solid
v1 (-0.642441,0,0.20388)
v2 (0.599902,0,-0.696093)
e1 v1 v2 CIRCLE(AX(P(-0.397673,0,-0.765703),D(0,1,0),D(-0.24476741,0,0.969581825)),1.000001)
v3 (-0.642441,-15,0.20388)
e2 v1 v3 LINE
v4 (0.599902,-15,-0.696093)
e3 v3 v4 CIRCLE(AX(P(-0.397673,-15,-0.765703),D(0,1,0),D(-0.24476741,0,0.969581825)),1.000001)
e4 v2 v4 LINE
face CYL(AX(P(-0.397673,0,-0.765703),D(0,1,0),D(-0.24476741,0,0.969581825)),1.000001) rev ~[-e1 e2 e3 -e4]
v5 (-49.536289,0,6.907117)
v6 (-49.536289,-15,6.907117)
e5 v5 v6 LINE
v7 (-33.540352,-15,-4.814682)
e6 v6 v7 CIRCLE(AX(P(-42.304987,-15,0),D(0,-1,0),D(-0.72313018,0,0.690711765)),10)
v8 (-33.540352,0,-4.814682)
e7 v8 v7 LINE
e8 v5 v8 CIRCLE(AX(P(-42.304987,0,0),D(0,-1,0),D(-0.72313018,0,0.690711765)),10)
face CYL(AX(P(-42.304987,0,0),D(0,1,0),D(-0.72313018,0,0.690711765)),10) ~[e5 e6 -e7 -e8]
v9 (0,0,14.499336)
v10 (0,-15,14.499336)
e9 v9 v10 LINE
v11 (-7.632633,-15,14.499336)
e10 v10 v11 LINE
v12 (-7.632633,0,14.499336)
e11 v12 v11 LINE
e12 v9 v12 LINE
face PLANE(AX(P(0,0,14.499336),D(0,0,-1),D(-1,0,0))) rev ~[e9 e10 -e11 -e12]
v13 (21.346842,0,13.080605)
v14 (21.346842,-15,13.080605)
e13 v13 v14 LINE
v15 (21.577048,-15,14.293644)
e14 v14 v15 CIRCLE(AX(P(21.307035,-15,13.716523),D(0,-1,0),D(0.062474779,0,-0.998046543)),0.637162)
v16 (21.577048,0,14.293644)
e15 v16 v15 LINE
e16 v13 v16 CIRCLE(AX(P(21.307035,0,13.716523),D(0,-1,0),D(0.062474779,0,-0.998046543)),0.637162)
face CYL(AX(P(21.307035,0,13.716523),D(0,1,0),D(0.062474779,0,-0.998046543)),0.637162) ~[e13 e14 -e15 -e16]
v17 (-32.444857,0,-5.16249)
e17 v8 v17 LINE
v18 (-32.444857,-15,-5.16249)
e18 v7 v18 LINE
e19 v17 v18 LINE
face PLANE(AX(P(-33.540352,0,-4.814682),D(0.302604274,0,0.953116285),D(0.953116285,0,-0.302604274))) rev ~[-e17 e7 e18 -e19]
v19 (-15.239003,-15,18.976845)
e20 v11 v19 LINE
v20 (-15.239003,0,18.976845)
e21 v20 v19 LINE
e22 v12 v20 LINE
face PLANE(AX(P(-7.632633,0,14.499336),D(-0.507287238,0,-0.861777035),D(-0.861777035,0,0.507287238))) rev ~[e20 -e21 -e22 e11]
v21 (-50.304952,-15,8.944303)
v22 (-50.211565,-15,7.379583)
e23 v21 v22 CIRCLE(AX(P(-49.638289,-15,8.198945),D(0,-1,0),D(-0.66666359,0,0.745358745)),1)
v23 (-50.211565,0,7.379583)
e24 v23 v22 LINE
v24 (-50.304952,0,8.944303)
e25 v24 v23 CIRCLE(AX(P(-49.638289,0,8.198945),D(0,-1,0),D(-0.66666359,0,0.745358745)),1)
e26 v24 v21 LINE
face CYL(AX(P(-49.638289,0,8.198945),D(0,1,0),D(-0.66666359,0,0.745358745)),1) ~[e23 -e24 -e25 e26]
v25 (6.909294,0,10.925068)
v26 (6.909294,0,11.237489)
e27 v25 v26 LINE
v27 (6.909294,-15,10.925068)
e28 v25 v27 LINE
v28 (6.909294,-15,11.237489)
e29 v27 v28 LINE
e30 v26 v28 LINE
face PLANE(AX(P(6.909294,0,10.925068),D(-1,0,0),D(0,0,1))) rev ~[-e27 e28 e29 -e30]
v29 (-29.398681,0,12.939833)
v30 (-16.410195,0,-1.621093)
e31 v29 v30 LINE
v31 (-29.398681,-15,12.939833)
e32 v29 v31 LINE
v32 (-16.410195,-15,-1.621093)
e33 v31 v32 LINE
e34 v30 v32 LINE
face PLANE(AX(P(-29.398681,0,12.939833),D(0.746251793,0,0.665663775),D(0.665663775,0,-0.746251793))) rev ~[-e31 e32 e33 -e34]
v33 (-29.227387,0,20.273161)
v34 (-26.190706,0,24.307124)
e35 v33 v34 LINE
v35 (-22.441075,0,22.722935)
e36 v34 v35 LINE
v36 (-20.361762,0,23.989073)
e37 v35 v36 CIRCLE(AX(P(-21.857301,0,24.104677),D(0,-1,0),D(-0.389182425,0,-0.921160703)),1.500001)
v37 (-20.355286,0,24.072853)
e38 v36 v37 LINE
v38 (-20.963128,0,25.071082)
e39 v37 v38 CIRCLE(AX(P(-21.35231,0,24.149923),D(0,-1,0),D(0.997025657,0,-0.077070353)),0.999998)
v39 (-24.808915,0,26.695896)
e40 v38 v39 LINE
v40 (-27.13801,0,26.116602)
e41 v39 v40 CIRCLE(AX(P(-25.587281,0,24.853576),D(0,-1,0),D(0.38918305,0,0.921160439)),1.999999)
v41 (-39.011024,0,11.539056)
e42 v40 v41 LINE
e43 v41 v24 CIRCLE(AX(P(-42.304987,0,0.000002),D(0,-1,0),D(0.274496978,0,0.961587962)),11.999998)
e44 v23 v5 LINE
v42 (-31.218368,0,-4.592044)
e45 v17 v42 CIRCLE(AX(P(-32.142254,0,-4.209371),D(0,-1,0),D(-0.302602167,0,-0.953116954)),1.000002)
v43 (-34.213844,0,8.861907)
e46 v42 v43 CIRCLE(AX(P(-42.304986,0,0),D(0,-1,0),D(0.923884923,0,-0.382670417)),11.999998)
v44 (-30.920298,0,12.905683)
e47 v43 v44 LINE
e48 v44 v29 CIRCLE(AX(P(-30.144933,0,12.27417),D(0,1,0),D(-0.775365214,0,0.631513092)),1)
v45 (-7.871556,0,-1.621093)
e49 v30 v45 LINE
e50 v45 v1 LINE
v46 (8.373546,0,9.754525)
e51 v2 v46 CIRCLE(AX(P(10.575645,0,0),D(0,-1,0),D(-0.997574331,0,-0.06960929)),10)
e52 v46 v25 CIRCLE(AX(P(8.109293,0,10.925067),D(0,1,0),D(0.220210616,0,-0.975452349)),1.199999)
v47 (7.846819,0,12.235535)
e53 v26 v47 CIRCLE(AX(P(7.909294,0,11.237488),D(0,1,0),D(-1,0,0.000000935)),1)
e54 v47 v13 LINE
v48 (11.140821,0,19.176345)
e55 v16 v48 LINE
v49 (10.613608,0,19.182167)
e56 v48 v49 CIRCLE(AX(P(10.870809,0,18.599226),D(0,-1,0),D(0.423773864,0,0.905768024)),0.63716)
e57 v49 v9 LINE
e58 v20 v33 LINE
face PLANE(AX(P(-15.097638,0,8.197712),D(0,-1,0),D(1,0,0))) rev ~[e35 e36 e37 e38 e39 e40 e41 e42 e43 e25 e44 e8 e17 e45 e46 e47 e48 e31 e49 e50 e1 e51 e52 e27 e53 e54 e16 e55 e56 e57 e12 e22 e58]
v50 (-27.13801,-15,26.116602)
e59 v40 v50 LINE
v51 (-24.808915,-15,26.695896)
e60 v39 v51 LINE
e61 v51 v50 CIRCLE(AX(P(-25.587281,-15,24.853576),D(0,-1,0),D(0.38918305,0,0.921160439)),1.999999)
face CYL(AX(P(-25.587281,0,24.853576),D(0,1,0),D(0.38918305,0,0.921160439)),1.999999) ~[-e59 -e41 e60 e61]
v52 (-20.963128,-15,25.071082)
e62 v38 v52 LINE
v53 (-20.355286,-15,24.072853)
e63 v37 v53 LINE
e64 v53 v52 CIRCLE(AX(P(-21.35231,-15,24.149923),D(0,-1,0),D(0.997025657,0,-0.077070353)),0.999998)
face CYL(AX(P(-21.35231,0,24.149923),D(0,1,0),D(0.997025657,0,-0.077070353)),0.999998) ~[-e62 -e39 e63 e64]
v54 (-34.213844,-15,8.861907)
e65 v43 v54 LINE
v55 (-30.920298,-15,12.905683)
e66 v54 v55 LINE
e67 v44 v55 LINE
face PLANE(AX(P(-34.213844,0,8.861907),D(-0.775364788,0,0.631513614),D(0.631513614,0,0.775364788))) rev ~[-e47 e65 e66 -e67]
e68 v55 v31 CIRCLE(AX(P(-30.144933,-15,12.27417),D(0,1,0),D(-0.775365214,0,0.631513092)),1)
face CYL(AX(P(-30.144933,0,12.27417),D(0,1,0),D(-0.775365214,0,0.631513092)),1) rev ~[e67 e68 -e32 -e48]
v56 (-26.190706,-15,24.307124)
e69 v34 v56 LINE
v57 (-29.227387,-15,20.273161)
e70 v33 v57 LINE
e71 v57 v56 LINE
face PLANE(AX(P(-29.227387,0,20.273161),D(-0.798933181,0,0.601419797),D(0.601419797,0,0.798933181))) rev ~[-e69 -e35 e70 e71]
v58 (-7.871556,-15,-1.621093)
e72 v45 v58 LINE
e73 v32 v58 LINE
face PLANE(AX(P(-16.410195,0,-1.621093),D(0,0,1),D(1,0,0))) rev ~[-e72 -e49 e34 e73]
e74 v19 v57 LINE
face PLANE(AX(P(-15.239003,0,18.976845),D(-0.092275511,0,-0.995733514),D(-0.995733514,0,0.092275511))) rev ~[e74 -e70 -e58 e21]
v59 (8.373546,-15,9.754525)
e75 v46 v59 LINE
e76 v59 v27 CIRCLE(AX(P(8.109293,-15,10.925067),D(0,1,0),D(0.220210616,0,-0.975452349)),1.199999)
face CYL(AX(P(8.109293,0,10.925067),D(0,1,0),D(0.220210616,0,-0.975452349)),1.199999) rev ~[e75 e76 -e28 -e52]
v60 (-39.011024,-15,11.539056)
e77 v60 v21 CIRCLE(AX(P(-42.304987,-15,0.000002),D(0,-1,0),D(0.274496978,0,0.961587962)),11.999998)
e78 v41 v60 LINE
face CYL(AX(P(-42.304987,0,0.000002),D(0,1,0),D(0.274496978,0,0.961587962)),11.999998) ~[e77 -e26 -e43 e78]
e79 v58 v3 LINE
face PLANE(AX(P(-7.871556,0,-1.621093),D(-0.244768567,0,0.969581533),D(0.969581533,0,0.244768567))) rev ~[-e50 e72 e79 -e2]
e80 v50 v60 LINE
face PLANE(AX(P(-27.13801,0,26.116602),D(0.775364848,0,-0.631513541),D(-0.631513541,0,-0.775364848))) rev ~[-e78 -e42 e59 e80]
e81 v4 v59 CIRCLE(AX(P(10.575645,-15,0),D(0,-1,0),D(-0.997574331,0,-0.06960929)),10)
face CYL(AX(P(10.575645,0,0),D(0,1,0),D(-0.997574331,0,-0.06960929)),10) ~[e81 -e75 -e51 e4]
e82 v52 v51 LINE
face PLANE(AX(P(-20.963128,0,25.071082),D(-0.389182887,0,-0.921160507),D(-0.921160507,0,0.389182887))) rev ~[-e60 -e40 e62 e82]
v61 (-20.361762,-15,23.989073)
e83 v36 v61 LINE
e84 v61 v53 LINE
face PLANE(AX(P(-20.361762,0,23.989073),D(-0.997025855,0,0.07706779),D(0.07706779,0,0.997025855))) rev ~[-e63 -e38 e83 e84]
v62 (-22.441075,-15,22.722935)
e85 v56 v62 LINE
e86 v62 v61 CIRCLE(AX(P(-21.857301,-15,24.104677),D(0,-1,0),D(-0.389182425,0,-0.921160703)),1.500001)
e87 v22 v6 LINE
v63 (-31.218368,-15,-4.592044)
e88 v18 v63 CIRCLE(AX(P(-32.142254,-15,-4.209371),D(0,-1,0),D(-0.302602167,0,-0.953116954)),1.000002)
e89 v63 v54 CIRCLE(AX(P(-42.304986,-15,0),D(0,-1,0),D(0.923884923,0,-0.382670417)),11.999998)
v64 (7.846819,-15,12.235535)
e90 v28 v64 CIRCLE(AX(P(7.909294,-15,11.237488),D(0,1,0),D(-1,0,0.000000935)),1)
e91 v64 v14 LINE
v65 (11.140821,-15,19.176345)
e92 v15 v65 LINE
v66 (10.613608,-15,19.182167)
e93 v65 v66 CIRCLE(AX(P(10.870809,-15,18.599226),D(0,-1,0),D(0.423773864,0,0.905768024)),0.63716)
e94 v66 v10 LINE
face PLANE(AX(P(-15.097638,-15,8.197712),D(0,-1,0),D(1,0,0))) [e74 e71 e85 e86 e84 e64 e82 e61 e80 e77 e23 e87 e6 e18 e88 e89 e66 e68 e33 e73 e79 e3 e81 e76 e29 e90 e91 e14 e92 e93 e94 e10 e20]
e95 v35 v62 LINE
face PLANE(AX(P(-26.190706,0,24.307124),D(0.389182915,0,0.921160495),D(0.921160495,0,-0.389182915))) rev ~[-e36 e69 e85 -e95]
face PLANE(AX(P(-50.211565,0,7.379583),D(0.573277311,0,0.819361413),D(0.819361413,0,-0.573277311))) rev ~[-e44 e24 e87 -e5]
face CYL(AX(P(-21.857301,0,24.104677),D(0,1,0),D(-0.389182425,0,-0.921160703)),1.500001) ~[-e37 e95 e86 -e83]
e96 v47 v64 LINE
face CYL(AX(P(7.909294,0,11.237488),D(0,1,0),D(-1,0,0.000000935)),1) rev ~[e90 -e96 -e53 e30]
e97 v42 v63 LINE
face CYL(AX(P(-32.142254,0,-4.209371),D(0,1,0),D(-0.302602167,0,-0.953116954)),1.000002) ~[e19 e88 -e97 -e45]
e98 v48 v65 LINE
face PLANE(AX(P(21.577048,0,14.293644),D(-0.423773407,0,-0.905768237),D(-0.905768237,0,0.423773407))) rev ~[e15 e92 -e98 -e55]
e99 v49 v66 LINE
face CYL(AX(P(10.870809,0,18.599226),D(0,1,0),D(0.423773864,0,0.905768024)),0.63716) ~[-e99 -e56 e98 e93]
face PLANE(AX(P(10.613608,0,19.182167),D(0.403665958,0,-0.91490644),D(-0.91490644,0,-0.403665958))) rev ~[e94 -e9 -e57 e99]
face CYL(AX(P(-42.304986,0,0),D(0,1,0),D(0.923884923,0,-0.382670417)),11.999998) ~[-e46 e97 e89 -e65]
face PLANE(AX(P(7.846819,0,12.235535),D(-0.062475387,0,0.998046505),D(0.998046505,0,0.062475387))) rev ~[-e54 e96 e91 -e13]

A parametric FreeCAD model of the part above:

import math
import FreeCAD as App
import Part
import Sketcher
Q = App.Units.Quantity

doc = App.newDocument("Part")
body = doc.addObject("PartDesign::Body", "Body")

sketch1 = body.newObject("Sketcher::SketchObject", "Sketch")
sketch1.AttachmentSupport = (doc.getObject("XZ_Plane"), [""])
sketch1.MapMode = "FlatFace"
sketch1.addGeometry([
    Part.LineSegment(App.Vector(-50.211565, 7.379583, 0), App.Vector(-49.536289, 6.907117, 0)),
    Part.ArcOfCircle(Part.Circle(App.Vector(-42.304987, 0, 0), App.Vector(0, 0, 1), 10), math.radians(136.313522), math.radians(331.218665)),
    Part.LineSegment(App.Vector(-33.540352, -4.814682, 0), App.Vector(-32.444857, -5.16249, 0)),
    Part.ArcOfCircle(Part.Circle(App.Vector(-32.142254, -4.209371, 0), App.Vector(0, 0, 1), 1.000002), math.radians(-107.613963), math.radians(-22.499302)),
    Part.ArcOfCircle(Part.Circle(App.Vector(-42.304986, 0, 0), App.Vector(0, 0, 1), 11.999998), math.radians(-22.499193), math.radians(47.603142)),
    Part.LineSegment(App.Vector(-34.213844, 8.861907, 0), App.Vector(-30.920298, 12.905683, 0)),
    Part.ArcOfCircle(Part.Circle(App.Vector(-30.144933, 12.27417, 0), App.Vector(0, 0, 1), 1), math.radians(41.733217), math.radians(140.838156)),
    Part.LineSegment(App.Vector(-29.398681, 12.939833, 0), App.Vector(-16.410195, -1.621093, 0)),
    Part.LineSegment(App.Vector(-16.410195, -1.621093, 0), App.Vector(-7.871556, -1.621093, 0)),
    Part.LineSegment(App.Vector(-7.871556, -1.621093, 0), App.Vector(-0.642441, 0.20388, 0)),
    Part.ArcOfCircle(Part.Circle(App.Vector(-0.397673, -0.765703, 0), App.Vector(0, 0, 1), 1.000001), math.radians(3.991573), math.radians(104.168089)),
    Part.ArcOfCircle(Part.Circle(App.Vector(10.575645, 0, 0), App.Vector(0, 0, 1), 10), math.radians(-176.008454), math.radians(102.721364)),
    Part.ArcOfCircle(Part.Circle(App.Vector(8.109293, 10.925067, 0), App.Vector(0, 0, 1), 1.199999), math.radians(179.999963), math.radians(282.721404)),
    Part.LineSegment(App.Vector(6.909294, 10.925068, 0), App.Vector(6.909294, 11.237489, 0)),
    Part.ArcOfCircle(Part.Circle(App.Vector(7.909294, 11.237488, 0), App.Vector(0, 0, 1), 1), math.radians(93.58191), math.radians(179.999946)),
    Part.LineSegment(App.Vector(7.846819, 12.235535, 0), App.Vector(21.346842, 13.080605, 0)),
    Part.ArcOfCircle(Part.Circle(App.Vector(21.307035, 13.716523, 0), App.Vector(0, 0, 1), 0.637162), math.radians(-86.418126), math.radians(64.926939)),
    Part.LineSegment(App.Vector(21.577048, 14.293644, 0), App.Vector(11.140821, 19.176345, 0)),
    Part.ArcOfCircle(Part.Circle(App.Vector(10.870809, 18.599226, 0), App.Vector(0, 0, 1), 0.63716), math.radians(64.926922), math.radians(113.807697)),
    Part.LineSegment(App.Vector(10.613608, 19.182167, 0), App.Vector(0, 14.499336, 0)),
    Part.LineSegment(App.Vector(0, 14.499336, 0), App.Vector(-7.632633, 14.499336, 0)),
    Part.LineSegment(App.Vector(-7.632633, 14.499336, 0), App.Vector(-15.239003, 18.976845, 0)),
    Part.LineSegment(App.Vector(-15.239003, 18.976845, 0), App.Vector(-29.227387, 20.273161, 0)),
    Part.LineSegment(App.Vector(-29.227387, 20.273161, 0), App.Vector(-26.190706, 24.307124, 0)),
    Part.LineSegment(App.Vector(-26.190706, 24.307124, 0), App.Vector(-22.441075, 22.722935, 0)),
    Part.ArcOfCircle(Part.Circle(App.Vector(-21.857301, 24.104677, 0), App.Vector(0, 0, 1), 1.500001), math.radians(-112.903637), math.radians(-4.420111)),
    Part.LineSegment(App.Vector(-20.361762, 23.989073, 0), App.Vector(-20.355286, 24.072853, 0)),
    Part.ArcOfCircle(Part.Circle(App.Vector(-21.35231, 24.149923, 0), App.Vector(0, 0, 1), 0.999998), math.radians(-4.420189), math.radians(67.096365)),
    Part.LineSegment(App.Vector(-20.963128, 25.071082, 0), App.Vector(-24.808915, 26.695896, 0)),
    Part.ArcOfCircle(Part.Circle(App.Vector(-25.587281, 24.853576, 0), App.Vector(0, 0, 1), 1.999999), math.radians(67.096324), math.radians(140.838141)),
    Part.LineSegment(App.Vector(-27.13801, 26.116602, 0), App.Vector(-39.011024, 11.539056, 0)),
    Part.ArcOfCircle(Part.Circle(App.Vector(-42.304987, 0.000002, 0), App.Vector(0, 0, 1), 11.999998), math.radians(74.06796), math.radians(131.810099)),
    Part.ArcOfCircle(Part.Circle(App.Vector(-49.638289, 8.198945, 0), App.Vector(0, 0, 1), 1), math.radians(131.810078), math.radians(235.020973)),
], False)
sketch1.addConstraint([
    Sketcher.Constraint("Coincident", 0, 2, 1, 1),
    Sketcher.Constraint("Coincident", 1, 2, 2, 1),
    Sketcher.Constraint("Coincident", 2, 2, 3, 1),
    Sketcher.Constraint("Coincident", 3, 2, 4, 1),
    Sketcher.Constraint("Coincident", 4, 2, 5, 1),
    Sketcher.Constraint("Coincident", 5, 2, 6, 2),
    Sketcher.Constraint("Coincident", 6, 1, 7, 1),
    Sketcher.Constraint("Coincident", 7, 2, 8, 1),
    Sketcher.Constraint("Coincident", 8, 2, 9, 1),
    Sketcher.Constraint("Coincident", 9, 2, 10, 2),
    Sketcher.Constraint("Coincident", 10, 1, 11, 1),
    Sketcher.Constraint("Coincident", 11, 2, 12, 2),
    Sketcher.Constraint("Coincident", 12, 1, 13, 1),
    Sketcher.Constraint("Coincident", 13, 2, 14, 2),
    Sketcher.Constraint("Coincident", 14, 1, 15, 1),
    Sketcher.Constraint("Coincident", 15, 2, 16, 1),
    Sketcher.Constraint("Coincident", 16, 2, 17, 1),
    Sketcher.Constraint("Coincident", 17, 2, 18, 1),
    Sketcher.Constraint("Coincident", 18, 2, 19, 1),
    Sketcher.Constraint("Coincident", 19, 2, 20, 1),
    Sketcher.Constraint("Coincident", 20, 2, 21, 1),
    Sketcher.Constraint("Coincident", 21, 2, 22, 1),
    Sketcher.Constraint("Coincident", 22, 2, 23, 1),
    Sketcher.Constraint("Coincident", 23, 2, 24, 1),
    Sketcher.Constraint("Coincident", 24, 2, 25, 1),
    Sketcher.Constraint("Coincident", 25, 2, 26, 1),
    Sketcher.Constraint("Coincident", 26, 2, 27, 1),
    Sketcher.Constraint("Coincident", 27, 2, 28, 1),
    Sketcher.Constraint("Coincident", 28, 2, 29, 1),
    Sketcher.Constraint("Coincident", 29, 2, 30, 1),
    Sketcher.Constraint("Coincident", 30, 2, 31, 1),
    Sketcher.Constraint("Coincident", 31, 2, 32, 1),
    Sketcher.Constraint("Coincident", 32, 2, 0, 1),
    Sketcher.Constraint("Horizontal", 8),
    Sketcher.Constraint("Vertical", 13),
    Sketcher.Constraint("Horizontal", 20),
    Sketcher.Constraint("Coincident", 4, 3, 1, 3),
    Sketcher.Constraint("Coincident", 31, 3, 1, 3),
    Sketcher.Constraint("PointOnObject", 1, 3, -1),
    Sketcher.Constraint("PointOnObject", 11, 3, -1),
    Sketcher.Constraint("PointOnObject", 19, 2, -2),
    Sketcher.Constraint("Radius", 1, Q("10 mm")),
    Sketcher.Constraint("Radius", 4, Q("11.999998 mm")),
    Sketcher.Constraint("Radius", 6, Q("1 mm")),
    Sketcher.Constraint("Radius", 10, Q("1.000001 mm")),
    Sketcher.Constraint("Radius", 11, Q("10 mm")),
    Sketcher.Constraint("Radius", 14, Q("1 mm")),
    Sketcher.Constraint("Radius", 29, Q("1.999999 mm")),
    Sketcher.Constraint("Radius", 32, Q("1 mm")),
    Sketcher.Constraint("Radius", 12, Q("1.199999 mm")),
    Sketcher.Constraint("Radius", 25, Q("1.500001 mm")),
    Sketcher.Constraint("Radius", 18, Q("0.63716 mm")),
    Sketcher.Constraint("Radius", 3, Q("1.000002 mm")),
    Sketcher.Constraint("Radius", 16, Q("0.637162 mm")),
    Sketcher.Constraint("Radius", 27, Q("0.999998 mm")),
    Sketcher.Constraint("Radius", 31, Q("11.999998 mm")),
    Sketcher.Constraint("DistanceX", 32, 3, 0, 2, Q("0.102 mm")),
    Sketcher.Constraint("DistanceY", 8, 2, 10, 1, Q("0.925 mm")),
    Sketcher.Constraint("DistanceX", 14, 1, 17, 2, Q("3.294002 mm")),
    Sketcher.Constraint("DistanceX", 8, 1, 8, 2, Q("8.538639 mm")),
    Sketcher.Constraint("DistanceY", 13, 1, 13, 2, Q("0.312421 mm")),
    Sketcher.Constraint("DistanceX", 25, 3, -1, 1, Q("21.857301 mm")),
    Sketcher.Constraint("DistanceY", -1, 1, 29, 2, Q("26.116602 mm")),
    Sketcher.Constraint("DistanceX", 3, 3, 11, 3, Q("42.7179 mm")),
    Sketcher.Constraint("DistanceY", 25, 3, 29, 3, Q("0.7489 mm")),
    Sketcher.Constraint("DistanceX", 32, 3, 31, 3, Q("7.333302 mm")),
    Sketcher.Constraint("DistanceX", 6, 1, 29, 3, Q("3.8114 mm")),
    Sketcher.Constraint("DistanceX", 8, 2, 11, 3, Q("18.447201 mm")),
    Sketcher.Constraint("DistanceY", 11, 2, 18, 3, Q("8.844701 mm")),
    Sketcher.Constraint("DistanceX", 11, 2, 11, 3, Q("2.202099 mm")),
    Sketcher.Constraint("DistanceX", 18, 2, 18, 3, Q("0.257201 mm")),
    Sketcher.Constraint("DistanceY", 12, 3, 18, 2, Q("8.2571 mm")),
    Sketcher.Constraint("DistanceY", 14, 1, 19, 2, Q("2.263801 mm")),
    Sketcher.Constraint("DistanceX", 25, 3, 21, 2, Q("6.618298 mm")),
    Sketcher.Constraint("DistanceY", 27, 3, 23, 2, Q("0.157201 mm")),
    Sketcher.Constraint("DistanceY", 31, 3, 31, 2, Q("8.944301 mm")),
    Sketcher.Constraint("Distance", 0, Q("0.824149 mm")),
    Sketcher.Constraint("Distance", 5, Q("5.215321 mm")),
    Sketcher.Constraint("Distance", 7, Q("19.512082 mm")),
    Sketcher.Constraint("Distance", 17, Q("11.521962 mm")),
    Sketcher.Constraint("Distance", 21, Q("8.826378 mm")),
    Sketcher.Constraint("Distance", 22, Q("14.048321 mm")),
    Sketcher.Constraint("Distance", 24, Q("4.070551 mm")),
    Sketcher.Constraint("Distance", 26, Q("0.08403 mm")),
    Sketcher.Constraint("DistanceX", 20, 2, 20, 1, Q("7.632633 mm")),
    Sketcher.Constraint("DistanceY", 3, 3, -1, 1, Q("4.209371 mm")),
    Sketcher.Constraint("DistanceY", -1, 1, 6, 3, Q("12.27417 mm")),
    Sketcher.Constraint("DistanceY", -1, 1, 14, 3, Q("11.237488 mm")),
    Sketcher.Constraint("DistanceX", -1, 1, 18, 3, Q("10.870809 mm")),
    Sketcher.Constraint("DistanceX", 27, 3, -1, 1, Q("21.35231 mm")),
    Sketcher.Constraint("DistanceX", 29, 3, -1, 1, Q("25.587281 mm")),
    Sketcher.Constraint("DistanceX", 32, 3, -1, 1, Q("49.638289 mm")),
    Sketcher.Constraint("DistanceX", 1, 2, -1, 1, Q("33.540352 mm")),
    Sketcher.Constraint("DistanceY", 2, 2, -1, 1, Q("5.16249 mm")),
    Sketcher.Constraint("DistanceX", 3, 2, -1, 1, Q("31.218368 mm")),
    Sketcher.Constraint("DistanceX", 9, 2, -1, 1, Q("0.642441 mm")),
    Sketcher.Constraint("DistanceY", -1, 1, 9, 2, Q("0.20388 mm")),
    Sketcher.Constraint("DistanceY", -1, 1, 13, 2, Q("11.237489 mm")),
    Sketcher.Constraint("DistanceX", -1, 1, 14, 1, Q("7.846819 mm")),
    Sketcher.Constraint("DistanceX", -1, 1, 15, 2, Q("21.346842 mm")),
    Sketcher.Constraint("DistanceX", -1, 1, 16, 2, Q("21.577048 mm")),
    Sketcher.Constraint("DistanceY", -1, 1, 22, 2, Q("20.273161 mm")),
    Sketcher.Constraint("DistanceX", 25, 2, -1, 1, Q("20.361762 mm")),
    Sketcher.Constraint("DistanceX", 27, 2, -1, 1, Q("20.963128 mm")),
    Sketcher.Constraint("DistanceY", -1, 1, 27, 2, Q("25.071082 mm")),
    Sketcher.Constraint("DistanceX", 29, 2, -1, 1, Q("27.13801 mm")),
    Sketcher.Constraint("DistanceX", 3, 3, 6, 3, Q("1.997321 mm")),
    Sketcher.Constraint("DistanceX", 14, 3, 16, 3, Q("13.397741 mm")),
    Sketcher.Constraint("DistanceX", 4, 2, 6, 3, Q("4.068911 mm")),
    Sketcher.Constraint("DistanceX", 22, 2, 23, 2, Q("3.036681 mm")),
    Sketcher.Constraint("DistanceY", 29, 3, 28, 2, Q("1.84232 mm")),
    Sketcher.Constraint("DistanceX", 30, 2, 4, 2, Q("4.79718 mm")),
])
pad1 = body.newObject("PartDesign::Pad", "Pad")
pad1.Profile = sketch1
pad1.Length = 15

doc.recompute()
